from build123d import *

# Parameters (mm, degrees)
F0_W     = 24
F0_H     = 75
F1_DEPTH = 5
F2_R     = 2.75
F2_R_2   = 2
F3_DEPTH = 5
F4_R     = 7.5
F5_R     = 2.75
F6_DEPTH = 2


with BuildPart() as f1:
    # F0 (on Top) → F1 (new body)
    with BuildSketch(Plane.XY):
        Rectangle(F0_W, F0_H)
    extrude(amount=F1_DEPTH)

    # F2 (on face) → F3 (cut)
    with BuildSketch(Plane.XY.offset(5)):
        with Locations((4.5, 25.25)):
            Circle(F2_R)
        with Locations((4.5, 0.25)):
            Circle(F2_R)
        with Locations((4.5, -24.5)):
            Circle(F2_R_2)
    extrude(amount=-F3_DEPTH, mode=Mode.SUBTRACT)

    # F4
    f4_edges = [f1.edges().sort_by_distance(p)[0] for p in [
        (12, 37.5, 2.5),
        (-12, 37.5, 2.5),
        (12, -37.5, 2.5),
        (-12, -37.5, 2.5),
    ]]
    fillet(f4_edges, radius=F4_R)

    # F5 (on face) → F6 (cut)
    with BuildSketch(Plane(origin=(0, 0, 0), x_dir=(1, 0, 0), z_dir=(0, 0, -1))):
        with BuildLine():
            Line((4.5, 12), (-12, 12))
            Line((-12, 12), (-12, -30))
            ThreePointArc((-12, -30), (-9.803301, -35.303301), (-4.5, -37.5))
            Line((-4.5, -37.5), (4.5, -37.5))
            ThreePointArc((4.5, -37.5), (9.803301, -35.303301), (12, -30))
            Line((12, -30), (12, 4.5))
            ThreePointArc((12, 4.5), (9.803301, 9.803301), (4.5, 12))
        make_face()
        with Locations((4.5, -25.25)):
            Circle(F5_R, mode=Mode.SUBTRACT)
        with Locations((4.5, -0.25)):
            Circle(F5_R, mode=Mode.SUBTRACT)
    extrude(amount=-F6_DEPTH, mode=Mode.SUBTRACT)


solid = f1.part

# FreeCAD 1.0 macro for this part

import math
import FreeCAD as App
import Part
import Sketcher

V = App.Vector


def edges_at(feature, points):
    """Names of the edges that pass closest to the given points."""
    edges = feature.Shape.Edges
    near = lambda p: min(range(len(edges)), key=lambda i: edges[i].distToShape(Part.Vertex(*p))[0])
    return sorted({f"Edge{near(p) + 1}" for p in points})

doc = App.newDocument("Part")
body = doc.addObject("PartDesign::Body", "Body")

sketch1 = body.newObject("Sketcher::SketchObject", "Sketch")
sketch1.AttachmentSupport = (doc.getObject("XY_Plane"), [""])
sketch1.MapMode = "FlatFace"
sketch1.addGeometry([
    Part.LineSegment(V(-12, 37.5, 0), V(-12, -37.5, 0)),
    Part.LineSegment(V(-12, -37.5, 0), V(12, -37.5, 0)),
    Part.LineSegment(V(12, -37.5, 0), V(12, 37.5, 0)),
    Part.LineSegment(V(12, 37.5, 0), V(-12, 37.5, 0)),
], False)
sketch1.addConstraint([
    Sketcher.Constraint("Coincident", 0, 2, 1, 1),
    Sketcher.Constraint("Coincident", 1, 2, 2, 1),
    Sketcher.Constraint("Coincident", 2, 2, 3, 1),
    Sketcher.Constraint("Coincident", 3, 2, 0, 1),
    Sketcher.Constraint("Vertical", 0),
    Sketcher.Constraint("Horizontal", 1),
    Sketcher.Constraint("Vertical", 2),
    Sketcher.Constraint("Horizontal", 3),
    Sketcher.Constraint("Symmetric", 0, 2, 2, 2, -1, 1),
    Sketcher.Constraint("DistanceX", 1, 1, 1, 2, 24.0),
    Sketcher.Constraint("DistanceY", 0, 2, 0, 1, 75.0),
])
pad1 = body.newObject("PartDesign::Pad", "Pad")
pad1.Profile = sketch1
pad1.Length = 5

sketch2 = body.newObject("Sketcher::SketchObject", "Sketch001")
sketch2.AttachmentSupport = (doc.getObject("XY_Plane"), [""])
sketch2.MapMode = "FlatFace"
sketch2.AttachmentOffset = App.Placement(V(0, 0, 5), App.Rotation())
sketch2.addGeometry([
    Part.Circle(V(4.5, 25.25, 0), V(0, 0, 1), 2.75),
    Part.Circle(V(4.5, 0.25, 0), V(0, 0, 1), 2.75),
    Part.Circle(V(4.5, -24.5, 0), V(0, 0, 1), 2),
], False)
sketch2.addConstraint([
    Sketcher.Constraint("Equal", 0, 1),
    Sketcher.Constraint("Vertical", 0, 3, 1, 3),
    Sketcher.Constraint("Vertical", 1, 3, 2, 3),
    Sketcher.Constraint("Diameter", 2, 4.0),
    Sketcher.Constraint("Diameter", 0, 5.5),
    Sketcher.Constraint("DistanceY", 1, 3, 0, 3, 25.0),
    Sketcher.Constraint("DistanceX", -1, 1, 0, 3, 4.5),
    Sketcher.Constraint("DistanceY", 2, 3, -1, 1, 24.5),
    Sketcher.Constraint("DistanceY", -1, 1, 0, 3, 25.25),
])
pocket1 = body.newObject("PartDesign::Pocket", "Pocket")
pocket1.Profile = sketch2
pocket1.Length = 5
doc.recompute()

fillet = body.newObject("PartDesign::Fillet", "Fillet")
fillet.Base = (pocket1, edges_at(pocket1, [
    (12, 37.5, 2.5),
    (-12, 37.5, 2.5),
    (12, -37.5, 2.5),
    (-12, -37.5, 2.5),
]))
fillet.Radius = 7.5

sketch3 = body.newObject("Sketcher::SketchObject", "Sketch002")
sketch3.AttachmentSupport = (doc.getObject("XY_Plane"), [""])
sketch3.MapMode = "FlatFace"
sketch3.addGeometry([
    Part.LineSegment(V(4.5, -12, 0), V(-12, -12, 0)),
    Part.LineSegment(V(-12, -12, 0), V(-12, 30, 0)),
    Part.ArcOfCircle(Part.Circle(V(-4.5, 30, 0), V(0, 0, 1), 7.5), math.radians(89.999996), math.radians(180.000004)),
    Part.LineSegment(V(-4.5, 37.5, 0), V(4.5, 37.5, 0)),
    Part.ArcOfCircle(Part.Circle(V(4.5, 30, 0), V(0, 0, 1), 7.5), math.radians(-0.000004), math.radians(90.000004)),
    Part.LineSegment(V(12, 30, 0), V(12, -4.5, 0)),
    Part.ArcOfCircle(Part.Circle(V(4.5, -4.5, 0), V(0, 0, 1), 7.5), math.radians(-90.000004), math.radians(0.000004)),
    Part.Circle(V(4.5, 25.25, 0), V(0, 0, 1), 2.75),
    Part.Circle(V(4.5, 0.25, 0), V(0, 0, 1), 2.75),
], False)
sketch3.addConstraint([
    Sketcher.Constraint("Coincident", 0, 2, 1, 1),
    Sketcher.Constraint("Tangent", 1, 2, 2, 2),
    Sketcher.Constraint("Tangent", 2, 1, 3, 1),
    Sketcher.Constraint("Tangent", 3, 2, 4, 2),
    Sketcher.Constraint("Tangent", 4, 1, 5, 1),
    Sketcher.Constraint("Tangent", 5, 2, 6, 2),
    Sketcher.Constraint("Tangent", 6, 1, 0, 1),
    Sketcher.Constraint("Horizontal", 0),
    Sketcher.Constraint("Vertical", 1),
    Sketcher.Constraint("Horizontal", 3),
    Sketcher.Constraint("Vertical", 5),
    Sketcher.Constraint("Equal", 2, 4),
    Sketcher.Constraint("Equal", 4, 6),
    Sketcher.Constraint("Equal", 7, 8),
    Sketcher.Constraint("Vertical", 6, 3, 7, 3),
    Sketcher.Constraint("Vertical", 7, 3, 8, 3),
    Sketcher.Constraint("Diameter", 7, 5.5),
    Sketcher.Constraint("Radius", 2, 7.5),
    Sketcher.Constraint("DistanceX", 3, 1, 3, 2, 9.0),
    Sketcher.Constraint("DistanceY", 1, 1, 1, 2, 42.0),
    Sketcher.Constraint("DistanceY", -1, 1, 2, 3, 30.0),
    Sketcher.Constraint("DistanceX", 0, 2, -1, 1, 12.0),
    Sketcher.Constraint("DistanceY", 8, 3, 7, 3, 25.0),
    Sketcher.Constraint("DistanceY", -1, 1, 7, 3, 25.25),
])
pocket2 = body.newObject("PartDesign::Pocket", "Pocket001")
pocket2.Profile = sketch3
pocket2.Length = 2
pocket2.Reversed = True

doc.recompute()
